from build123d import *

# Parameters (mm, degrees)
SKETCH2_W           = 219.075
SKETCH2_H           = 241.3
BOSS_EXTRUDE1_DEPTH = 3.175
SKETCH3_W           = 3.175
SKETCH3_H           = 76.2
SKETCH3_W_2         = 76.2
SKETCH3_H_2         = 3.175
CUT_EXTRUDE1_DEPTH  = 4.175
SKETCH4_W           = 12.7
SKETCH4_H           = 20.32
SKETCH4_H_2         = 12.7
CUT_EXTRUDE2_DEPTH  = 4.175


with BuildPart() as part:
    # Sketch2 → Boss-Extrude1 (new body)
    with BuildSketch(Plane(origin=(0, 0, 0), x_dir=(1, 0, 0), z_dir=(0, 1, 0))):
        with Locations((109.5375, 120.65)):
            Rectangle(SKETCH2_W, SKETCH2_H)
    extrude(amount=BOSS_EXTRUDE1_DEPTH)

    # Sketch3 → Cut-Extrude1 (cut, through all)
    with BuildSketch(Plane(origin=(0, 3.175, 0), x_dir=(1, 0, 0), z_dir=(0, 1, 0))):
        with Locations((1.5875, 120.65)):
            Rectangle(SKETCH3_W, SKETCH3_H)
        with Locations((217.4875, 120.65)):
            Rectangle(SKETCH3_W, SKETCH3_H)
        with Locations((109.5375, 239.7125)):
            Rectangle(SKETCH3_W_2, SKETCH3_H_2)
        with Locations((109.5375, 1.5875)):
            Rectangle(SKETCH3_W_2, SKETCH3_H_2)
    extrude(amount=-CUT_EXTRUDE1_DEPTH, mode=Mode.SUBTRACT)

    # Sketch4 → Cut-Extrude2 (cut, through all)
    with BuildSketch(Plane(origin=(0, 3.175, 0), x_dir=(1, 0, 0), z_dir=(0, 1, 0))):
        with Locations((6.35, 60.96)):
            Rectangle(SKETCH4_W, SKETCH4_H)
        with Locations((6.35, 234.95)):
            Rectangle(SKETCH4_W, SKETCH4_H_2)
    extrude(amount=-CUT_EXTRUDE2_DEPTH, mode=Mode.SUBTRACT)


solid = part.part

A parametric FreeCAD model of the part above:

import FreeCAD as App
import Part
import Sketcher
from FreeCAD import Vector
Q = App.Units.Quantity

doc = App.newDocument("Part")
body = doc.addObject("PartDesign::Body", "Body")

# Sketch on XZ plane
sketch1 = doc.addObject("Sketcher::SketchObject", "Sketch")
body.addObject(sketch1)
sketch1.AttachmentSupport = (doc.XZ_Plane, [""])
sketch1.MapMode = "FlatFace"
sketch1.addGeometry([
    Part.LineSegment(Vector(0, -241.3, 0), Vector(0, 0, 0)),
    Part.LineSegment(Vector(0, 0, 0), Vector(219.075, 0, 0)),
    Part.LineSegment(Vector(219.075, 0, 0), Vector(219.075, -241.3, 0)),
    Part.LineSegment(Vector(219.075, -241.3, 0), Vector(0, -241.3, 0)),
], False)
sketch1.addConstraint([
    Sketcher.Constraint("Coincident", 0, 2, 1, 1),
    Sketcher.Constraint("Coincident", 1, 2, 2, 1),
    Sketcher.Constraint("Coincident", 2, 2, 3, 1),
    Sketcher.Constraint("Coincident", 3, 2, 0, 1),
    Sketcher.Constraint("Vertical", 0),
    Sketcher.Constraint("Horizontal", 1),
    Sketcher.Constraint("Vertical", 2),
    Sketcher.Constraint("Horizontal", 3),
    Sketcher.Constraint("Coincident", 0, 2, -1, 1),
    Sketcher.Constraint("DistanceY", 0, 1, 0, 2, Q("9.5 in")),
    Sketcher.Constraint("DistanceX", 1, 1, 1, 2, Q("8.625 in")),
])
pad1 = doc.addObject("PartDesign::Pad", "Pad")
body.addObject(pad1)
pad1.Profile = sketch1
pad1.Length = Q("0.125 in")
pad1.Reversed = True

# Sketch on XZ plane
sketch2 = doc.addObject("Sketcher::SketchObject", "Sketch001")
body.addObject(sketch2)
sketch2.AttachmentSupport = (doc.XZ_Plane, [""])
sketch2.MapMode = "FlatFace"
sketch2.AttachmentOffset = App.Placement(Vector(0, 0, -0.125 * 25.4), App.Rotation())
sketch2.addGeometry([
    Part.LineSegment(Vector(0, -158.75, 0), Vector(0, -82.55, 0)),  # 0
    Part.LineSegment(Vector(0, -82.55, 0), Vector(3.175, -82.55, 0)),  # 1
    Part.LineSegment(Vector(3.175, -82.55, 0), Vector(3.175, -158.75, 0)),  # 2
    Part.LineSegment(Vector(3.175, -158.75, 0), Vector(0, -158.75, 0)),  # 3
    Part.LineSegment(Vector(215.9, -158.75, 0), Vector(215.9, -82.55, 0)),  # 4
    Part.LineSegment(Vector(215.9, -82.55, 0), Vector(219.075, -82.55, 0)),  # 5
    Part.LineSegment(Vector(219.075, -82.55, 0), Vector(219.075, -158.75, 0)),  # 6
    Part.LineSegment(Vector(219.075, -158.75, 0), Vector(215.9, -158.75, 0)),  # 7
    Part.LineSegment(Vector(71.4375, -241.3, 0), Vector(71.4375, -238.125, 0)),  # 8
    Part.LineSegment(Vector(71.4375, -238.125, 0), Vector(147.6375, -238.125, 0)),  # 9
    Part.LineSegment(Vector(147.6375, -238.125, 0), Vector(147.6375, -241.3, 0)),  # 10
    Part.LineSegment(Vector(147.6375, -241.3, 0), Vector(71.4375, -241.3, 0)),  # 11
    Part.LineSegment(Vector(71.4375, -3.175, 0), Vector(71.4375, 0, 0)),  # 12
    Part.LineSegment(Vector(71.4375, 0, 0), Vector(147.6375, 0, 0)),  # 13
    Part.LineSegment(Vector(147.6375, 0, 0), Vector(147.6375, -3.175, 0)),  # 14
    Part.LineSegment(Vector(147.6375, -3.175, 0), Vector(71.4375, -3.175, 0)),  # 15
], False)
sketch2.addConstraint([
    Sketcher.Constraint("Coincident", 0, 2, 1, 1),
    Sketcher.Constraint("Coincident", 1, 2, 2, 1),
    Sketcher.Constraint("Coincident", 2, 2, 3, 1),
    Sketcher.Constraint("Coincident", 3, 2, 0, 1),
    Sketcher.Constraint("Coincident", 4, 2, 5, 1),
    Sketcher.Constraint("Coincident", 5, 2, 6, 1),
    Sketcher.Constraint("Coincident", 6, 2, 7, 1),
    Sketcher.Constraint("Coincident", 7, 2, 4, 1),
    Sketcher.Constraint("Coincident", 8, 2, 9, 1),
    Sketcher.Constraint("Coincident", 9, 2, 10, 1),
    Sketcher.Constraint("Coincident", 10, 2, 11, 1),
    Sketcher.Constraint("Coincident", 11, 2, 8, 1),
    Sketcher.Constraint("Coincident", 12, 2, 13, 1),
    Sketcher.Constraint("Coincident", 13, 2, 14, 1),
    Sketcher.Constraint("Coincident", 14, 2, 15, 1),
    Sketcher.Constraint("Coincident", 15, 2, 12, 1),
    Sketcher.Constraint("Vertical", 0),
    Sketcher.Constraint("Horizontal", 1),
    Sketcher.Constraint("Vertical", 2),
    Sketcher.Constraint("Horizontal", 3),
    Sketcher.Constraint("Vertical", 4),
    Sketcher.Constraint("Horizontal", 5),
    Sketcher.Constraint("Vertical", 6),
    Sketcher.Constraint("Horizontal", 7),
    Sketcher.Constraint("Vertical", 8),
    Sketcher.Constraint("Horizontal", 9),
    Sketcher.Constraint("Vertical", 10),
    Sketcher.Constraint("Horizontal", 11),
    Sketcher.Constraint("Vertical", 12),
    Sketcher.Constraint("Horizontal", 13),
    Sketcher.Constraint("Vertical", 14),
    Sketcher.Constraint("Horizontal", 15),
    Sketcher.Constraint("PointOnObject", 0, 2, -2),
    Sketcher.Constraint("PointOnObject", 12, 2, -1),
    Sketcher.Constraint("Horizontal", 1, 2, 4, 2),
    Sketcher.Constraint("Horizontal", 3, 2, 6, 2),
    Sketcher.Constraint("Vertical", 11, 2, 12, 2),
    Sketcher.Constraint("Vertical", 10, 2, 13, 2),
    Sketcher.Constraint("Equal", 3, 5),
    Sketcher.Constraint("Equal", 15, 0),
    Sketcher.Constraint("Equal", 7, 8),
    Sketcher.Constraint("Equal", 10, 12),
    Sketcher.Constraint("DistanceX", 9, 1, 9, 2, Q("3 in")),
    Sketcher.Constraint("DistanceX", -1, 1, 4, 2, Q("8.5 in")),
    Sketcher.Constraint("DistanceY", 10, 2, -1, 1, Q("9.5 in")),
    Sketcher.Constraint("DistanceX", 1, 1, 1, 2, Q("0.125 in")),
    Sketcher.Constraint("DistanceY", 0, 2, -1, 1, Q("3.25 in")),
    Sketcher.Constraint("DistanceX", -1, 1, 8, 2, Q("2.8125 in")),
])
pocket1 = doc.addObject("PartDesign::Pocket", "Pocket")
body.addObject(pocket1)
pocket1.Profile = sketch2
pocket1.Type = "ThroughAll"
pocket1.Reversed = True

# Sketch on XZ plane
sketch3 = doc.addObject("Sketcher::SketchObject", "Sketch002")
body.addObject(sketch3)
sketch3.AttachmentSupport = (doc.XZ_Plane, [""])
sketch3.MapMode = "FlatFace"
sketch3.AttachmentOffset = App.Placement(Vector(0, 0, -0.125 * 25.4), App.Rotation())
sketch3.addGeometry([
    Part.LineSegment(Vector(0, -71.12, 0), Vector(0, -50.8, 0)),  # 0
    Part.LineSegment(Vector(0, -50.8, 0), Vector(12.7, -50.8, 0)),  # 1
    Part.LineSegment(Vector(12.7, -50.8, 0), Vector(12.7, -71.12, 0)),  # 2
    Part.LineSegment(Vector(12.7, -71.12, 0), Vector(0, -71.12, 0)),  # 3
    Part.LineSegment(Vector(0, -241.3, 0), Vector(0, -228.6, 0)),  # 4
    Part.LineSegment(Vector(0, -228.6, 0), Vector(12.7, -228.6, 0)),  # 5
    Part.LineSegment(Vector(12.7, -228.6, 0), Vector(12.7, -241.3, 0)),  # 6
    Part.LineSegment(Vector(12.7, -241.3, 0), Vector(0, -241.3, 0)),  # 7
], False)
sketch3.addConstraint([
    Sketcher.Constraint("Coincident", 0, 2, 1, 1),
    Sketcher.Constraint("Coincident", 1, 2, 2, 1),
    Sketcher.Constraint("Coincident", 2, 2, 3, 1),
    Sketcher.Constraint("Coincident", 3, 2, 0, 1),
    Sketcher.Constraint("Coincident", 4, 2, 5, 1),
    Sketcher.Constraint("Coincident", 5, 2, 6, 1),
    Sketcher.Constraint("Coincident", 6, 2, 7, 1),
    Sketcher.Constraint("Coincident", 7, 2, 4, 1),
    Sketcher.Constraint("Vertical", 0),
    Sketcher.Constraint("Horizontal", 1),
    Sketcher.Constraint("Vertical", 2),
    Sketcher.Constraint("Horizontal", 3),
    Sketcher.Constraint("Vertical", 4),
    Sketcher.Constraint("Horizontal", 5),
    Sketcher.Constraint("Vertical", 6),
    Sketcher.Constraint("Horizontal", 7),
    Sketcher.Constraint("PointOnObject", 0, 2, -2),
    Sketcher.Constraint("PointOnObject", 4, 2, -2),
    Sketcher.Constraint("Vertical", 2, 2, 5, 2),
    Sketcher.Constraint("Equal", 7, 4),
    Sketcher.Constraint("DistanceX", 1, 1, 1, 2, Q("0.5 in")),
    Sketcher.Constraint("DistanceY", 0, 1, 0, 2, Q("0.8 in")),
    Sketcher.Constraint("DistanceY", 0, 2, -1, 1, Q("2 in")),
    Sketcher.Constraint("DistanceY", 4, 2, -1, 1, Q("9 in")),
])
pocket2 = doc.addObject("PartDesign::Pocket", "Pocket001")
body.addObject(pocket2)
pocket2.Profile = sketch3
pocket2.Type = "ThroughAll"
pocket2.Reversed = True

doc.recompute()
